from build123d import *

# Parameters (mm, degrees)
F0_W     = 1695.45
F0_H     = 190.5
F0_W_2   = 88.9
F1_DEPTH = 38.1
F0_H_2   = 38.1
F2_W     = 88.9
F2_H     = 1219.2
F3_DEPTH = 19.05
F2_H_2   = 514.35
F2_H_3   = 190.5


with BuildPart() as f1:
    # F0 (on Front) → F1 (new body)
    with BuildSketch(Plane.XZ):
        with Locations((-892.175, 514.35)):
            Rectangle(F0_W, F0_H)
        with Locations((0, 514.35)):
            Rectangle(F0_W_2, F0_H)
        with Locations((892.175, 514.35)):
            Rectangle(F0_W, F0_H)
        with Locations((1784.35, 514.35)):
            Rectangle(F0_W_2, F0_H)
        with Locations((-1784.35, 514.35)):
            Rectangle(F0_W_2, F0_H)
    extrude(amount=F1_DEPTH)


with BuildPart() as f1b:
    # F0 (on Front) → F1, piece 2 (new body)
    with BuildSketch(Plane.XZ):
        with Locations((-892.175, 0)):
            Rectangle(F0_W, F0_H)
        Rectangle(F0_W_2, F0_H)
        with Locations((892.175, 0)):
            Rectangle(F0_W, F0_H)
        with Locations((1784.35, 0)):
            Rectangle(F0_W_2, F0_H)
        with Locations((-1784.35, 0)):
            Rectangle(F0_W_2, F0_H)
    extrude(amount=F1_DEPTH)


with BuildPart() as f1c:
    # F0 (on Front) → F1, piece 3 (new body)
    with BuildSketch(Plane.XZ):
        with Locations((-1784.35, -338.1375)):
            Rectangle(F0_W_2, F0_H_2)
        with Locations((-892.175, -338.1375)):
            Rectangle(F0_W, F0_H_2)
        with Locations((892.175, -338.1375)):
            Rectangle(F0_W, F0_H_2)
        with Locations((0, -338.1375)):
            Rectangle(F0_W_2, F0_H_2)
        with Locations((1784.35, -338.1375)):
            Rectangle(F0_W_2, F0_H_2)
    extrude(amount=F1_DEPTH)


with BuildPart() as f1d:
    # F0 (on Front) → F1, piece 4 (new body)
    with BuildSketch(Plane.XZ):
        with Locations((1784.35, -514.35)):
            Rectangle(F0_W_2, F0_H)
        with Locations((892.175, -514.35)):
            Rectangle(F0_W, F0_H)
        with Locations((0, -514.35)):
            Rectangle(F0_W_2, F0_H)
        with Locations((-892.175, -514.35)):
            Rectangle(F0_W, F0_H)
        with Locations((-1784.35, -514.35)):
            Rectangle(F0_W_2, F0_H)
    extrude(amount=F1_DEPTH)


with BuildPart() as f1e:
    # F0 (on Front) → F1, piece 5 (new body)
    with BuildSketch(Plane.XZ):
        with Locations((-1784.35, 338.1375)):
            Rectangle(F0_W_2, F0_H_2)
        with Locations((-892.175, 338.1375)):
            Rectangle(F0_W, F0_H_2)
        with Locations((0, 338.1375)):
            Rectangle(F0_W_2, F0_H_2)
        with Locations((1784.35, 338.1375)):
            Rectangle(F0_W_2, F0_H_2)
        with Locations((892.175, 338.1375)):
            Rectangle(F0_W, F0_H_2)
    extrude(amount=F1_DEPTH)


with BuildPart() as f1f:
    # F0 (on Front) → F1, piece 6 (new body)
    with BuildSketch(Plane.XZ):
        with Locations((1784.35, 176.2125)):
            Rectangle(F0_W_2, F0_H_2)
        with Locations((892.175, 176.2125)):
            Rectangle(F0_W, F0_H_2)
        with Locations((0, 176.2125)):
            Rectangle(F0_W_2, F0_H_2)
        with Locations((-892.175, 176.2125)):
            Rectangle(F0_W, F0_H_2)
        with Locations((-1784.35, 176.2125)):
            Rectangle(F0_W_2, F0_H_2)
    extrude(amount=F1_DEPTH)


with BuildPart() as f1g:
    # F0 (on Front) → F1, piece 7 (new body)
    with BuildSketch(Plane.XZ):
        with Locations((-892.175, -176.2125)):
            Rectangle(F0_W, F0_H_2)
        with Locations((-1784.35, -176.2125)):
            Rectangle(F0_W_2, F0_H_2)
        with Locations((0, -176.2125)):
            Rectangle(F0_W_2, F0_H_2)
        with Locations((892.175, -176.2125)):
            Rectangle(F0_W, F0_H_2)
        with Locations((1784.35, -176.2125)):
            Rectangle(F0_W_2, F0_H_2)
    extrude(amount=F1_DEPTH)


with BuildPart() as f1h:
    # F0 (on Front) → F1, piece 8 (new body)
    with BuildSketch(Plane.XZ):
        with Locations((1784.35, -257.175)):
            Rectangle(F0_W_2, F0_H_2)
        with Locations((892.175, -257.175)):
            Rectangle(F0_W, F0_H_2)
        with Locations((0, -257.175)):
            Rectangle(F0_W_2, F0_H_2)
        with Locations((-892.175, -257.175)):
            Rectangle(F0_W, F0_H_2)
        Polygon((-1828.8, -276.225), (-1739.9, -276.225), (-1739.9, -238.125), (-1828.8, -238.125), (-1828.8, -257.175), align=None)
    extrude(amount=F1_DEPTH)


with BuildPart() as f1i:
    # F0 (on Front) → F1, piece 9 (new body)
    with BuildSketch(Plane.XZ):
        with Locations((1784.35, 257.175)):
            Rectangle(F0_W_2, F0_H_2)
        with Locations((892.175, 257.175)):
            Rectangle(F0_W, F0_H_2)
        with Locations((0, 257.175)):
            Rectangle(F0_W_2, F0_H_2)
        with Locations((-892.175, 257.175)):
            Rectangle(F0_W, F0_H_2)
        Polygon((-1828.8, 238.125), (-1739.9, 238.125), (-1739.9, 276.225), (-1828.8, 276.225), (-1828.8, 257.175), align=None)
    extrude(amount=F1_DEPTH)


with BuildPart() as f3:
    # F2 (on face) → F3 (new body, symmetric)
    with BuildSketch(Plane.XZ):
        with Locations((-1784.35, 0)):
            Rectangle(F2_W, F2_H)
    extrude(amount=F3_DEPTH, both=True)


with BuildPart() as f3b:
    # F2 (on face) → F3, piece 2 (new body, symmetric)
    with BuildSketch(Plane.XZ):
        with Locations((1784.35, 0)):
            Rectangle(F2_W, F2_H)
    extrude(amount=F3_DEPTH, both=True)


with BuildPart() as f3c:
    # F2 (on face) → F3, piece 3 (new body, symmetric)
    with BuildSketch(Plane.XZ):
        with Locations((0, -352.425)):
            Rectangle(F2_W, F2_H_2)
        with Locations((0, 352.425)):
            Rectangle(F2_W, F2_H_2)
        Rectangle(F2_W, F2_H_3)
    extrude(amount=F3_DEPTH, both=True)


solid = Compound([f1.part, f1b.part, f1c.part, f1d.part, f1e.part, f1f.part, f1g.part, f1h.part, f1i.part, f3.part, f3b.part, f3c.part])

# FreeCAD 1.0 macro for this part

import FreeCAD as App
import Part
import Sketcher
Q = App.Units.Quantity

doc = App.newDocument("Part")
body = doc.addObject("PartDesign::Body", "Body")

# Sketch on XZ plane
sketch1 = body.newObject("Sketcher::SketchObject", "Sketch")
sketch1.AttachmentSupport = (doc.getObject("XZ_Plane"), [""])
sketch1.MapMode = "FlatFace"
sketch1.addGeometry(Part.LineSegment(App.Vector(1828.8, 419.1, 0), App.Vector(1828.8, 609.6, 0)), False)
sketch1.addGeometry(Part.LineSegment(App.Vector(1828.8, 609.6, 0), App.Vector(-1828.8, 609.6, 0)), False)
sketch1.addGeometry(Part.LineSegment(App.Vector(-1828.8, 609.6, 0), App.Vector(-1828.8, 419.1, 0)), False)
sketch1.addGeometry(Part.LineSegment(App.Vector(-1828.8, 419.1, 0), App.Vector(1828.8, 419.1, 0)), False)
sketch1.addConstraint(Sketcher.Constraint("Coincident", 0, 2, 1, 1))
sketch1.addConstraint(Sketcher.Constraint("Coincident", 1, 2, 2, 1))
sketch1.addConstraint(Sketcher.Constraint("Coincident", 2, 2, 3, 1))
sketch1.addConstraint(Sketcher.Constraint("Coincident", 3, 2, 0, 1))
sketch1.addConstraint(Sketcher.Constraint("Vertical", 0))
sketch1.addConstraint(Sketcher.Constraint("Horizontal", 1))
sketch1.addConstraint(Sketcher.Constraint("Vertical", 2))
sketch1.addConstraint(Sketcher.Constraint("Horizontal", 3))
sketch1.addConstraint(Sketcher.Constraint("DistanceX", 1, 2, 1, 1, Q("144 in")))
sketch1.addConstraint(Sketcher.Constraint("DistanceY", 0, 1, 0, 2, Q("7.5 in")))
sketch1.addConstraint(Sketcher.Constraint("DistanceX", -1, 1, 0, 2, Q("72 in")))
sketch1.addConstraint(Sketcher.Constraint("DistanceY", -1, 1, 0, 2, Q("24 in")))
pad1 = body.newObject("PartDesign::Pad", "Pad")
pad1.Profile = sketch1
pad1.Length = Q("1.5 in")
body2 = doc.addObject("PartDesign::Body", "Body001")

# Sketch on XZ plane
sketch2 = body2.newObject("Sketcher::SketchObject", "Sketch001")
sketch2.AttachmentSupport = (doc.getObject("XZ_Plane001"), [""])
sketch2.MapMode = "FlatFace"
sketch2.addGeometry(Part.LineSegment(App.Vector(1828.8, -95.25, 0), App.Vector(1828.8, 95.25, 0)), False)
sketch2.addGeometry(Part.LineSegment(App.Vector(1828.8, 95.25, 0), App.Vector(-1828.8, 95.25, 0)), False)
sketch2.addGeometry(Part.LineSegment(App.Vector(-1828.8, 95.25, 0), App.Vector(-1828.8, -95.25, 0)), False)
sketch2.addGeometry(Part.LineSegment(App.Vector(-1828.8, -95.25, 0), App.Vector(1828.8, -95.25, 0)), False)
sketch2.addConstraint(Sketcher.Constraint("Coincident", 0, 2, 1, 1))
sketch2.addConstraint(Sketcher.Constraint("Coincident", 1, 2, 2, 1))
sketch2.addConstraint(Sketcher.Constraint("Coincident", 2, 2, 3, 1))
sketch2.addConstraint(Sketcher.Constraint("Coincident", 3, 2, 0, 1))
sketch2.addConstraint(Sketcher.Constraint("Vertical", 0))
sketch2.addConstraint(Sketcher.Constraint("Horizontal", 1))
sketch2.addConstraint(Sketcher.Constraint("Vertical", 2))
sketch2.addConstraint(Sketcher.Constraint("Horizontal", 3))
sketch2.addConstraint(Sketcher.Constraint("Symmetric", 0, 2, 2, 2, -1, 1))
sketch2.addConstraint(Sketcher.Constraint("DistanceX", 1, 2, 1, 1, Q("144 in")))
sketch2.addConstraint(Sketcher.Constraint("DistanceY", 0, 1, 0, 2, Q("7.5 in")))
pad2 = body2.newObject("PartDesign::Pad", "Pad001")
pad2.Profile = sketch2
pad2.Length = Q("1.5 in")
body3 = doc.addObject("PartDesign::Body", "Body002")

# Sketch on XZ plane
sketch3 = body3.newObject("Sketcher::SketchObject", "Sketch002")
sketch3.AttachmentSupport = (doc.getObject("XZ_Plane002"), [""])
sketch3.MapMode = "FlatFace"
sketch3.addGeometry(Part.LineSegment(App.Vector(-1828.8, -319.0875, 0), App.Vector(-1828.8, -357.1875, 0)), False)
sketch3.addGeometry(Part.LineSegment(App.Vector(-1828.8, -357.1875, 0), App.Vector(1828.8, -357.1875, 0)), False)
sketch3.addGeometry(Part.LineSegment(App.Vector(1828.8, -357.1875, 0), App.Vector(1828.8, -319.0875, 0)), False)
sketch3.addGeometry(Part.LineSegment(App.Vector(1828.8, -319.0875, 0), App.Vector(-1828.8, -319.0875, 0)), False)
sketch3.addConstraint(Sketcher.Constraint("Coincident", 0, 2, 1, 1))
sketch3.addConstraint(Sketcher.Constraint("Coincident", 1, 2, 2, 1))
sketch3.addConstraint(Sketcher.Constraint("Coincident", 2, 2, 3, 1))
sketch3.addConstraint(Sketcher.Constraint("Coincident", 3, 2, 0, 1))
sketch3.addConstraint(Sketcher.Constraint("Vertical", 0))
sketch3.addConstraint(Sketcher.Constraint("Horizontal", 1))
sketch3.addConstraint(Sketcher.Constraint("Vertical", 2))
sketch3.addConstraint(Sketcher.Constraint("Horizontal", 3))
sketch3.addConstraint(Sketcher.Constraint("DistanceX", 1, 1, 1, 2, Q("144 in")))
sketch3.addConstraint(Sketcher.Constraint("DistanceY", 0, 2, 0, 1, Q("1.5 in")))
sketch3.addConstraint(Sketcher.Constraint("DistanceX", 0, 2, -1, 1, Q("72 in")))
sketch3.addConstraint(Sketcher.Constraint("DistanceY", 0, 2, -1, 1, Q("14.0625 in")))
pad3 = body3.newObject("PartDesign::Pad", "Pad002")
pad3.Profile = sketch3
pad3.Length = Q("1.5 in")
body4 = doc.addObject("PartDesign::Body", "Body003")

# Sketch on XZ plane
sketch4 = body4.newObject("Sketcher::SketchObject", "Sketch003")
sketch4.AttachmentSupport = (doc.getObject("XZ_Plane003"), [""])
sketch4.MapMode = "FlatFace"
sketch4.addGeometry(Part.LineSegment(App.Vector(1828.8, -609.6, 0), App.Vector(1828.8, -419.1, 0)), False)
sketch4.addGeometry(Part.LineSegment(App.Vector(1828.8, -419.1, 0), App.Vector(-1828.8, -419.1, 0)), False)
sketch4.addGeometry(Part.LineSegment(App.Vector(-1828.8, -419.1, 0), App.Vector(-1828.8, -609.6, 0)), False)
sketch4.addGeometry(Part.LineSegment(App.Vector(-1828.8, -609.6, 0), App.Vector(1828.8, -609.6, 0)), False)
sketch4.addConstraint(Sketcher.Constraint("Coincident", 0, 2, 1, 1))
sketch4.addConstraint(Sketcher.Constraint("Coincident", 1, 2, 2, 1))
sketch4.addConstraint(Sketcher.Constraint("Coincident", 2, 2, 3, 1))
sketch4.addConstraint(Sketcher.Constraint("Coincident", 3, 2, 0, 1))
sketch4.addConstraint(Sketcher.Constraint("Vertical", 0))
sketch4.addConstraint(Sketcher.Constraint("Horizontal", 1))
sketch4.addConstraint(Sketcher.Constraint("Vertical", 2))
sketch4.addConstraint(Sketcher.Constraint("Horizontal", 3))
sketch4.addConstraint(Sketcher.Constraint("DistanceX", 1, 2, 1, 1, Q("144 in")))
sketch4.addConstraint(Sketcher.Constraint("DistanceY", 0, 1, 0, 2, Q("7.5 in")))
sketch4.addConstraint(Sketcher.Constraint("DistanceX", -1, 1, 0, 2, Q("72 in")))
sketch4.addConstraint(Sketcher.Constraint("DistanceY", 2, 2, -1, 1, Q("24 in")))
pad4 = body4.newObject("PartDesign::Pad", "Pad003")
pad4.Profile = sketch4
pad4.Length = Q("1.5 in")
body5 = doc.addObject("PartDesign::Body", "Body004")

# Sketch on XZ plane
sketch5 = body5.newObject("Sketcher::SketchObject", "Sketch004")
sketch5.AttachmentSupport = (doc.getObject("XZ_Plane004"), [""])
sketch5.MapMode = "FlatFace"
sketch5.addGeometry(Part.LineSegment(App.Vector(-1828.8, 357.1875, 0), App.Vector(-1828.8, 319.0875, 0)), False)
sketch5.addGeometry(Part.LineSegment(App.Vector(-1828.8, 319.0875, 0), App.Vector(1828.8, 319.0875, 0)), False)
sketch5.addGeometry(Part.LineSegment(App.Vector(1828.8, 319.0875, 0), App.Vector(1828.8, 357.1875, 0)), False)
sketch5.addGeometry(Part.LineSegment(App.Vector(1828.8, 357.1875, 0), App.Vector(-1828.8, 357.1875, 0)), False)
sketch5.addConstraint(Sketcher.Constraint("Coincident", 0, 2, 1, 1))
sketch5.addConstraint(Sketcher.Constraint("Coincident", 1, 2, 2, 1))
sketch5.addConstraint(Sketcher.Constraint("Coincident", 2, 2, 3, 1))
sketch5.addConstraint(Sketcher.Constraint("Coincident", 3, 2, 0, 1))
sketch5.addConstraint(Sketcher.Constraint("Vertical", 0))
sketch5.addConstraint(Sketcher.Constraint("Horizontal", 1))
sketch5.addConstraint(Sketcher.Constraint("Vertical", 2))
sketch5.addConstraint(Sketcher.Constraint("Horizontal", 3))
sketch5.addConstraint(Sketcher.Constraint("DistanceX", 1, 1, 1, 2, Q("144 in")))
sketch5.addConstraint(Sketcher.Constraint("DistanceY", 0, 2, 0, 1, Q("1.5 in")))
sketch5.addConstraint(Sketcher.Constraint("DistanceX", 0, 2, -1, 1, Q("72 in")))
sketch5.addConstraint(Sketcher.Constraint("DistanceY", -1, 1, 0, 2, Q("12.5625 in")))
pad5 = body5.newObject("PartDesign::Pad", "Pad004")
pad5.Profile = sketch5
pad5.Length = Q("1.5 in")
body6 = doc.addObject("PartDesign::Body", "Body005")

# Sketch on XZ plane
sketch6 = body6.newObject("Sketcher::SketchObject", "Sketch005")
sketch6.AttachmentSupport = (doc.getObject("XZ_Plane005"), [""])
sketch6.MapMode = "FlatFace"
sketch6.addGeometry(Part.LineSegment(App.Vector(1828.8, 157.1625, 0), App.Vector(1828.8, 195.2625, 0)), False)
sketch6.addGeometry(Part.LineSegment(App.Vector(1828.8, 195.2625, 0), App.Vector(-1828.8, 195.2625, 0)), False)
sketch6.addGeometry(Part.LineSegment(App.Vector(-1828.8, 195.2625, 0), App.Vector(-1828.8, 157.1625, 0)), False)
sketch6.addGeometry(Part.LineSegment(App.Vector(-1828.8, 157.1625, 0), App.Vector(1828.8, 157.1625, 0)), False)
sketch6.addConstraint(Sketcher.Constraint("Coincident", 0, 2, 1, 1))
sketch6.addConstraint(Sketcher.Constraint("Coincident", 1, 2, 2, 1))
sketch6.addConstraint(Sketcher.Constraint("Coincident", 2, 2, 3, 1))
sketch6.addConstraint(Sketcher.Constraint("Coincident", 3, 2, 0, 1))
sketch6.addConstraint(Sketcher.Constraint("Vertical", 0))
sketch6.addConstraint(Sketcher.Constraint("Horizontal", 1))
sketch6.addConstraint(Sketcher.Constraint("Vertical", 2))
sketch6.addConstraint(Sketcher.Constraint("Horizontal", 3))
sketch6.addConstraint(Sketcher.Constraint("DistanceX", 1, 2, 1, 1, Q("144 in")))
sketch6.addConstraint(Sketcher.Constraint("DistanceY", 0, 1, 0, 2, Q("1.5 in")))
sketch6.addConstraint(Sketcher.Constraint("DistanceX", -1, 1, 0, 2, Q("72 in")))
sketch6.addConstraint(Sketcher.Constraint("DistanceY", -1, 1, 0, 2, Q("7.6875 in")))
pad6 = body6.newObject("PartDesign::Pad", "Pad005")
pad6.Profile = sketch6
pad6.Length = Q("1.5 in")
body7 = doc.addObject("PartDesign::Body", "Body006")

# Sketch on XZ plane
sketch7 = body7.newObject("Sketcher::SketchObject", "Sketch006")
sketch7.AttachmentSupport = (doc.getObject("XZ_Plane006"), [""])
sketch7.MapMode = "FlatFace"
sketch7.addGeometry(Part.LineSegment(App.Vector(-1828.8, -157.1625, 0), App.Vector(-1828.8, -195.2625, 0)), False)
sketch7.addGeometry(Part.LineSegment(App.Vector(-1828.8, -195.2625, 0), App.Vector(1828.8, -195.2625, 0)), False)
sketch7.addGeometry(Part.LineSegment(App.Vector(1828.8, -195.2625, 0), App.Vector(1828.8, -157.1625, 0)), False)
sketch7.addGeometry(Part.LineSegment(App.Vector(1828.8, -157.1625, 0), App.Vector(-1828.8, -157.1625, 0)), False)
sketch7.addConstraint(Sketcher.Constraint("Coincident", 0, 2, 1, 1))
sketch7.addConstraint(Sketcher.Constraint("Coincident", 1, 2, 2, 1))
sketch7.addConstraint(Sketcher.Constraint("Coincident", 2, 2, 3, 1))
sketch7.addConstraint(Sketcher.Constraint("Coincident", 3, 2, 0, 1))
sketch7.addConstraint(Sketcher.Constraint("Vertical", 0))
sketch7.addConstraint(Sketcher.Constraint("Horizontal", 1))
sketch7.addConstraint(Sketcher.Constraint("Vertical", 2))
sketch7.addConstraint(Sketcher.Constraint("Horizontal", 3))
sketch7.addConstraint(Sketcher.Constraint("DistanceX", 1, 1, 1, 2, Q("144 in")))
sketch7.addConstraint(Sketcher.Constraint("DistanceY", 0, 2, 0, 1, Q("1.5 in")))
sketch7.addConstraint(Sketcher.Constraint("DistanceX", 0, 2, -1, 1, Q("72 in")))
sketch7.addConstraint(Sketcher.Constraint("DistanceY", 0, 2, -1, 1, Q("7.6875 in")))
pad7 = body7.newObject("PartDesign::Pad", "Pad006")
pad7.Profile = sketch7
pad7.Length = Q("1.5 in")
body8 = doc.addObject("PartDesign::Body", "Body007")

# Sketch on XZ plane
sketch8 = body8.newObject("Sketcher::SketchObject", "Sketch007")
sketch8.AttachmentSupport = (doc.getObject("XZ_Plane007"), [""])
sketch8.MapMode = "FlatFace"
sketch8.addGeometry(Part.LineSegment(App.Vector(1828.8, -276.225, 0), App.Vector(1828.8, -238.125, 0)), False)
sketch8.addGeometry(Part.LineSegment(App.Vector(1828.8, -238.125, 0), App.Vector(-1828.8, -238.125, 0)), False)
sketch8.addGeometry(Part.LineSegment(App.Vector(-1828.8, -238.125, 0), App.Vector(-1828.8, -276.225, 0)), False)
sketch8.addGeometry(Part.LineSegment(App.Vector(-1828.8, -276.225, 0), App.Vector(1828.8, -276.225, 0)), False)
sketch8.addConstraint(Sketcher.Constraint("Coincident", 0, 2, 1, 1))
sketch8.addConstraint(Sketcher.Constraint("Coincident", 1, 2, 2, 1))
sketch8.addConstraint(Sketcher.Constraint("Coincident", 2, 2, 3, 1))
sketch8.addConstraint(Sketcher.Constraint("Coincident", 3, 2, 0, 1))
sketch8.addConstraint(Sketcher.Constraint("Vertical", 0))
sketch8.addConstraint(Sketcher.Constraint("Horizontal", 1))
sketch8.addConstraint(Sketcher.Constraint("Vertical", 2))
sketch8.addConstraint(Sketcher.Constraint("Horizontal", 3))
sketch8.addConstraint(Sketcher.Constraint("DistanceX", 1, 2, 1, 1, Q("144 in")))
sketch8.addConstraint(Sketcher.Constraint("DistanceY", 0, 1, 0, 2, Q("1.5 in")))
sketch8.addConstraint(Sketcher.Constraint("DistanceX", -1, 1, 0, 2, Q("72 in")))
sketch8.addConstraint(Sketcher.Constraint("DistanceY", 0, 2, -1, 1, Q("9.375 in")))
pad8 = body8.newObject("PartDesign::Pad", "Pad007")
pad8.Profile = sketch8
pad8.Length = Q("1.5 in")
body9 = doc.addObject("PartDesign::Body", "Body008")

# Sketch on XZ plane
sketch9 = body9.newObject("Sketcher::SketchObject", "Sketch008")
sketch9.AttachmentSupport = (doc.getObject("XZ_Plane008"), [""])
sketch9.MapMode = "FlatFace"
sketch9.addGeometry(Part.LineSegment(App.Vector(1828.8, 238.125, 0), App.Vector(1828.8, 276.225, 0)), False)
sketch9.addGeometry(Part.LineSegment(App.Vector(1828.8, 276.225, 0), App.Vector(-1828.8, 276.225, 0)), False)
sketch9.addGeometry(Part.LineSegment(App.Vector(-1828.8, 276.225, 0), App.Vector(-1828.8, 238.125, 0)), False)
sketch9.addGeometry(Part.LineSegment(App.Vector(-1828.8, 238.125, 0), App.Vector(1828.8, 238.125, 0)), False)
sketch9.addConstraint(Sketcher.Constraint("Coincident", 0, 2, 1, 1))
sketch9.addConstraint(Sketcher.Constraint("Coincident", 1, 2, 2, 1))
sketch9.addConstraint(Sketcher.Constraint("Coincident", 2, 2, 3, 1))
sketch9.addConstraint(Sketcher.Constraint("Coincident", 3, 2, 0, 1))
sketch9.addConstraint(Sketcher.Constraint("Vertical", 0))
sketch9.addConstraint(Sketcher.Constraint("Horizontal", 1))
sketch9.addConstraint(Sketcher.Constraint("Vertical", 2))
sketch9.addConstraint(Sketcher.Constraint("Horizontal", 3))
sketch9.addConstraint(Sketcher.Constraint("DistanceX", 1, 2, 1, 1, Q("144 in")))
sketch9.addConstraint(Sketcher.Constraint("DistanceY", 0, 1, 0, 2, Q("1.5 in")))
sketch9.addConstraint(Sketcher.Constraint("DistanceX", -1, 1, 0, 2, Q("72 in")))
sketch9.addConstraint(Sketcher.Constraint("DistanceY", -1, 1, 0, 2, Q("10.875 in")))
pad9 = body9.newObject("PartDesign::Pad", "Pad008")
pad9.Profile = sketch9
pad9.Length = Q("1.5 in")
body10 = doc.addObject("PartDesign::Body", "Body009")

# Sketch on XZ plane
sketch10 = body10.newObject("Sketcher::SketchObject", "Sketch009")
sketch10.AttachmentSupport = (doc.getObject("XZ_Plane009"), [""])
sketch10.MapMode = "FlatFace"
sketch10.addGeometry(Part.LineSegment(App.Vector(-1828.8, 609.6, 0), App.Vector(-1828.8, -609.6, 0)), False)
sketch10.addGeometry(Part.LineSegment(App.Vector(-1828.8, -609.6, 0), App.Vector(-1739.9, -609.6, 0)), False)
sketch10.addGeometry(Part.LineSegment(App.Vector(-1739.9, -609.6, 0), App.Vector(-1739.9, 609.6, 0)), False)
sketch10.addGeometry(Part.LineSegment(App.Vector(-1739.9, 609.6, 0), App.Vector(-1828.8, 609.6, 0)), False)
sketch10.addConstraint(Sketcher.Constraint("Coincident", 0, 2, 1, 1))
sketch10.addConstraint(Sketcher.Constraint("Coincident", 1, 2, 2, 1))
sketch10.addConstraint(Sketcher.Constraint("Coincident", 2, 2, 3, 1))
sketch10.addConstraint(Sketcher.Constraint("Coincident", 3, 2, 0, 1))
sketch10.addConstraint(Sketcher.Constraint("Vertical", 0))
sketch10.addConstraint(Sketcher.Constraint("Horizontal", 1))
sketch10.addConstraint(Sketcher.Constraint("Vertical", 2))
sketch10.addConstraint(Sketcher.Constraint("Horizontal", 3))
sketch10.addConstraint(Sketcher.Constraint("DistanceY", 0, 2, 0, 1, Q("48 in")))
sketch10.addConstraint(Sketcher.Constraint("DistanceX", 1, 1, 1, 2, Q("3.5 in")))
sketch10.addConstraint(Sketcher.Constraint("DistanceX", 0, 2, -1, 1, Q("72 in")))
sketch10.addConstraint(Sketcher.Constraint("DistanceY", 0, 2, -1, 1, Q("24 in")))
pad10 = body10.newObject("PartDesign::Pad", "Pad009")
pad10.Profile = sketch10
pad10.Length = Q("1.5 in")
pad10.Midplane = True
body11 = doc.addObject("PartDesign::Body", "Body010")

# Sketch on XZ plane
sketch11 = body11.newObject("Sketcher::SketchObject", "Sketch010")
sketch11.AttachmentSupport = (doc.getObject("XZ_Plane010"), [""])
sketch11.MapMode = "FlatFace"
sketch11.addGeometry(Part.LineSegment(App.Vector(1739.9, 609.6, 0), App.Vector(1739.9, -609.6, 0)), False)
sketch11.addGeometry(Part.LineSegment(App.Vector(1739.9, -609.6, 0), App.Vector(1828.8, -609.6, 0)), False)
sketch11.addGeometry(Part.LineSegment(App.Vector(1828.8, -609.6, 0), App.Vector(1828.8, 609.6, 0)), False)
sketch11.addGeometry(Part.LineSegment(App.Vector(1828.8, 609.6, 0), App.Vector(1739.9, 609.6, 0)), False)
sketch11.addConstraint(Sketcher.Constraint("Coincident", 0, 2, 1, 1))
sketch11.addConstraint(Sketcher.Constraint("Coincident", 1, 2, 2, 1))
sketch11.addConstraint(Sketcher.Constraint("Coincident", 2, 2, 3, 1))
sketch11.addConstraint(Sketcher.Constraint("Coincident", 3, 2, 0, 1))
sketch11.addConstraint(Sketcher.Constraint("Vertical", 0))
sketch11.addConstraint(Sketcher.Constraint("Horizontal", 1))
sketch11.addConstraint(Sketcher.Constraint("Vertical", 2))
sketch11.addConstraint(Sketcher.Constraint("Horizontal", 3))
sketch11.addConstraint(Sketcher.Constraint("DistanceY", 0, 2, 0, 1, Q("48 in")))
sketch11.addConstraint(Sketcher.Constraint("DistanceX", 1, 1, 1, 2, Q("3.5 in")))
sketch11.addConstraint(Sketcher.Constraint("DistanceY", 0, 2, -1, 1, Q("24 in")))
sketch11.addConstraint(Sketcher.Constraint("DistanceX", -1, 1, 1, 2, Q("72 in")))
pad11 = body11.newObject("PartDesign::Pad", "Pad010")
pad11.Profile = sketch11
pad11.Length = Q("1.5 in")
pad11.Midplane = True
body12 = doc.addObject("PartDesign::Body", "Body011")

# Sketch on XZ plane
sketch12 = body12.newObject("Sketcher::SketchObject", "Sketch011")
sketch12.AttachmentSupport = (doc.getObject("XZ_Plane011"), [""])
sketch12.MapMode = "FlatFace"
sketch12.addGeometry(Part.LineSegment(App.Vector(-44.45, -609.6, 0), App.Vector(44.45, -609.6, 0)), False)
sketch12.addGeometry(Part.LineSegment(App.Vector(44.45, -609.6, 0), App.Vector(44.45, 609.6, 0)), False)
sketch12.addGeometry(Part.LineSegment(App.Vector(44.45, 609.6, 0), App.Vector(-44.45, 609.6, 0)), False)
sketch12.addGeometry(Part.LineSegment(App.Vector(-44.45, 609.6, 0), App.Vector(-44.45, -609.6, 0)), False)
sketch12.addConstraint(Sketcher.Constraint("Coincident", 0, 2, 1, 1))
sketch12.addConstraint(Sketcher.Constraint("Coincident", 1, 2, 2, 1))
sketch12.addConstraint(Sketcher.Constraint("Coincident", 2, 2, 3, 1))
sketch12.addConstraint(Sketcher.Constraint("Coincident", 3, 2, 0, 1))
sketch12.addConstraint(Sketcher.Constraint("Horizontal", 0))
sketch12.addConstraint(Sketcher.Constraint("Vertical", 1))
sketch12.addConstraint(Sketcher.Constraint("Horizontal", 2))
sketch12.addConstraint(Sketcher.Constraint("Vertical", 3))
sketch12.addConstraint(Sketcher.Constraint("Symmetric", 0, 2, 2, 2, -1, 1))
sketch12.addConstraint(Sketcher.Constraint("DistanceY", 1, 1, 1, 2, Q("48 in")))
sketch12.addConstraint(Sketcher.Constraint("DistanceX", 0, 1, 0, 2, Q("3.5 in")))
pad12 = body12.newObject("PartDesign::Pad", "Pad011")
pad12.Profile = sketch12
pad12.Length = Q("1.5 in")
pad12.Midplane = True

doc.recompute()
